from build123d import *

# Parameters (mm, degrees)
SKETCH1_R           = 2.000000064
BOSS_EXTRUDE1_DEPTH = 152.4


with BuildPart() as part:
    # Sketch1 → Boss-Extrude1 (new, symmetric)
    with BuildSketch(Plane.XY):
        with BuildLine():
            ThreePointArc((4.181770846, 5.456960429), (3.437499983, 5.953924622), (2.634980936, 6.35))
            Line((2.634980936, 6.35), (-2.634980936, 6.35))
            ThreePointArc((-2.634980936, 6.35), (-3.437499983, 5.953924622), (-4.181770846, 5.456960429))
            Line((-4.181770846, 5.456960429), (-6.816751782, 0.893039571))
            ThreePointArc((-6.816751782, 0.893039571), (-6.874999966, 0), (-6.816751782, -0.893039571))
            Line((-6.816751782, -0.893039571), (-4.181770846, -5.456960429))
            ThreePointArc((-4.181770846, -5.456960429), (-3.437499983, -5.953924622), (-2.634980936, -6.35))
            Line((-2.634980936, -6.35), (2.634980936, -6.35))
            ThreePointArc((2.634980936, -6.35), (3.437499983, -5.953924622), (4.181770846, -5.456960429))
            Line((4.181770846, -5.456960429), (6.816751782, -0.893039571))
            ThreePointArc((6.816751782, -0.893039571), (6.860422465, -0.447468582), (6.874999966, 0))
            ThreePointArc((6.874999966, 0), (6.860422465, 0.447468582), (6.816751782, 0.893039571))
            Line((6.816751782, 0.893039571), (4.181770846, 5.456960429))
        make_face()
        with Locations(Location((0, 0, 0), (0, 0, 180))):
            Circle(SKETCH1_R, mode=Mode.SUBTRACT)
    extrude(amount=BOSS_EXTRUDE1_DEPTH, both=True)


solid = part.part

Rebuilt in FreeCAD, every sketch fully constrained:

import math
import FreeCAD as App
import Part
import Sketcher
Q = App.Units.Quantity

doc = App.newDocument("Part")
body = doc.addObject("PartDesign::Body", "Body")

sketch1 = body.newObject("Sketcher::SketchObject", "Sketch")
sketch1.AttachmentSupport = (doc.getObject("XY_Plane"), [""])
sketch1.MapMode = "FlatFace"
sketch1.addGeometry([
    Part.ArcOfCircle(Part.Circle(App.Vector(0, 0, 0), App.Vector(0, 0, 1), 6.9), math.radians(52.54), math.radians(67.46)),
    Part.LineSegment(App.Vector(2.6, 6.3, 0), App.Vector(-2.6, 6.3, 0)),
    Part.ArcOfCircle(Part.Circle(App.Vector(0, 0, 0), App.Vector(0, 0, 1), 6.9), math.radians(112.54), math.radians(127.46)),
    Part.LineSegment(App.Vector(-4.2, 5.5, 0), App.Vector(-6.8, 0.9, 0)),
    Part.ArcOfCircle(Part.Circle(App.Vector(0, 0, 0), App.Vector(0, 0, 1), 6.9), math.radians(172.54), math.radians(187.46)),
    Part.LineSegment(App.Vector(-6.8, -0.9, 0), App.Vector(-4.2, -5.5, 0)),
    Part.ArcOfCircle(Part.Circle(App.Vector(0, 0, 0), App.Vector(0, 0, 1), 6.9), math.radians(-127.46), math.radians(-112.54)),
    Part.LineSegment(App.Vector(-2.6, -6.3, 0), App.Vector(2.6, -6.3, 0)),
    Part.ArcOfCircle(Part.Circle(App.Vector(0, 0, 0), App.Vector(0, 0, 1), 6.9), math.radians(-67.46), math.radians(-52.54)),
    Part.LineSegment(App.Vector(4.2, -5.5, 0), App.Vector(6.8, -0.9, 0)),
    Part.ArcOfCircle(Part.Circle(App.Vector(0, 0, 0), App.Vector(0, 0, 1), 6.9), math.radians(-7.46), math.radians(0)),
    Part.ArcOfCircle(Part.Circle(App.Vector(0, 0, 0), App.Vector(0, 0, 1), 6.9), math.radians(0), math.radians(7.46)),
    Part.LineSegment(App.Vector(6.8, 0.9, 0), App.Vector(4.2, 5.5, 0)),
    Part.Circle(App.Vector(0, 0, 0), App.Vector(0, 0, 1), 2),
], False)
sketch1.addConstraint([
    Sketcher.Constraint("Coincident", 0, 2, 1, 1),
    Sketcher.Constraint("Coincident", 1, 2, 2, 1),
    Sketcher.Constraint("Coincident", 2, 2, 3, 1),
    Sketcher.Constraint("Coincident", 3, 2, 4, 1),
    Sketcher.Constraint("Coincident", 4, 2, 5, 1),
    Sketcher.Constraint("Coincident", 5, 2, 6, 1),
    Sketcher.Constraint("Coincident", 6, 2, 7, 1),
    Sketcher.Constraint("Coincident", 7, 2, 8, 1),
    Sketcher.Constraint("Coincident", 8, 2, 9, 1),
    Sketcher.Constraint("Coincident", 9, 2, 10, 1),
    Sketcher.Constraint("Tangent", 10, 2, 11, 1),
    Sketcher.Constraint("Coincident", 11, 2, 12, 1),
    Sketcher.Constraint("Coincident", 12, 2, 0, 1),
    Sketcher.Constraint("Horizontal", 1),
    Sketcher.Constraint("Horizontal", 7),
    Sketcher.Constraint("Coincident", 0, 3, -1, 1),
    Sketcher.Constraint("Coincident", 2, 3, -1, 1),
    Sketcher.Constraint("Coincident", 4, 3, -1, 1),
    Sketcher.Constraint("Coincident", 6, 3, -1, 1),
    Sketcher.Constraint("Coincident", 8, 3, -1, 1),
    Sketcher.Constraint("Coincident", 10, 3, -1, 1),
    Sketcher.Constraint("Coincident", 13, 3, -1, 1),
    Sketcher.Constraint("Equal", 0, 2),
    Sketcher.Constraint("Equal", 2, 4),
    Sketcher.Constraint("Equal", 4, 6),
    Sketcher.Constraint("Equal", 6, 8),
    Sketcher.Constraint("Equal", 8, 10),
    Sketcher.Constraint("Equal", 10, 11),
    Sketcher.Constraint("PointOnObject", 10, 2, -1),
    Sketcher.Constraint("Parallel", 3, 9),
    Sketcher.Constraint("Parallel", 5, 12),
    Sketcher.Constraint("Horizontal", 5, 2, 8, 2),
    Sketcher.Constraint("Horizontal", 4, 2, 9, 2),
    Sketcher.Constraint("Horizontal", 3, 2, 11, 2),
    Sketcher.Constraint("Vertical", 3, 2, 4, 2),
    Sketcher.Constraint("Vertical", 1, 2, 6, 2),
    Sketcher.Constraint("Diameter", 13, Q("4 mm")),
    Sketcher.Constraint("Angle", 3, Q("-120 deg")),
    Sketcher.Constraint("Radius", 0, Q("6.875 mm")),
    Sketcher.Constraint("DistanceY", -1, 1, 0, 2, Q("6.35 mm")),
    Sketcher.Constraint("Distance", 3, Q("5.269962 mm")),
])
pad1 = body.newObject("PartDesign::Pad", "Pad")
pad1.Profile = sketch1
pad1.Length = 304.8
pad1.Midplane = True

doc.recompute()
